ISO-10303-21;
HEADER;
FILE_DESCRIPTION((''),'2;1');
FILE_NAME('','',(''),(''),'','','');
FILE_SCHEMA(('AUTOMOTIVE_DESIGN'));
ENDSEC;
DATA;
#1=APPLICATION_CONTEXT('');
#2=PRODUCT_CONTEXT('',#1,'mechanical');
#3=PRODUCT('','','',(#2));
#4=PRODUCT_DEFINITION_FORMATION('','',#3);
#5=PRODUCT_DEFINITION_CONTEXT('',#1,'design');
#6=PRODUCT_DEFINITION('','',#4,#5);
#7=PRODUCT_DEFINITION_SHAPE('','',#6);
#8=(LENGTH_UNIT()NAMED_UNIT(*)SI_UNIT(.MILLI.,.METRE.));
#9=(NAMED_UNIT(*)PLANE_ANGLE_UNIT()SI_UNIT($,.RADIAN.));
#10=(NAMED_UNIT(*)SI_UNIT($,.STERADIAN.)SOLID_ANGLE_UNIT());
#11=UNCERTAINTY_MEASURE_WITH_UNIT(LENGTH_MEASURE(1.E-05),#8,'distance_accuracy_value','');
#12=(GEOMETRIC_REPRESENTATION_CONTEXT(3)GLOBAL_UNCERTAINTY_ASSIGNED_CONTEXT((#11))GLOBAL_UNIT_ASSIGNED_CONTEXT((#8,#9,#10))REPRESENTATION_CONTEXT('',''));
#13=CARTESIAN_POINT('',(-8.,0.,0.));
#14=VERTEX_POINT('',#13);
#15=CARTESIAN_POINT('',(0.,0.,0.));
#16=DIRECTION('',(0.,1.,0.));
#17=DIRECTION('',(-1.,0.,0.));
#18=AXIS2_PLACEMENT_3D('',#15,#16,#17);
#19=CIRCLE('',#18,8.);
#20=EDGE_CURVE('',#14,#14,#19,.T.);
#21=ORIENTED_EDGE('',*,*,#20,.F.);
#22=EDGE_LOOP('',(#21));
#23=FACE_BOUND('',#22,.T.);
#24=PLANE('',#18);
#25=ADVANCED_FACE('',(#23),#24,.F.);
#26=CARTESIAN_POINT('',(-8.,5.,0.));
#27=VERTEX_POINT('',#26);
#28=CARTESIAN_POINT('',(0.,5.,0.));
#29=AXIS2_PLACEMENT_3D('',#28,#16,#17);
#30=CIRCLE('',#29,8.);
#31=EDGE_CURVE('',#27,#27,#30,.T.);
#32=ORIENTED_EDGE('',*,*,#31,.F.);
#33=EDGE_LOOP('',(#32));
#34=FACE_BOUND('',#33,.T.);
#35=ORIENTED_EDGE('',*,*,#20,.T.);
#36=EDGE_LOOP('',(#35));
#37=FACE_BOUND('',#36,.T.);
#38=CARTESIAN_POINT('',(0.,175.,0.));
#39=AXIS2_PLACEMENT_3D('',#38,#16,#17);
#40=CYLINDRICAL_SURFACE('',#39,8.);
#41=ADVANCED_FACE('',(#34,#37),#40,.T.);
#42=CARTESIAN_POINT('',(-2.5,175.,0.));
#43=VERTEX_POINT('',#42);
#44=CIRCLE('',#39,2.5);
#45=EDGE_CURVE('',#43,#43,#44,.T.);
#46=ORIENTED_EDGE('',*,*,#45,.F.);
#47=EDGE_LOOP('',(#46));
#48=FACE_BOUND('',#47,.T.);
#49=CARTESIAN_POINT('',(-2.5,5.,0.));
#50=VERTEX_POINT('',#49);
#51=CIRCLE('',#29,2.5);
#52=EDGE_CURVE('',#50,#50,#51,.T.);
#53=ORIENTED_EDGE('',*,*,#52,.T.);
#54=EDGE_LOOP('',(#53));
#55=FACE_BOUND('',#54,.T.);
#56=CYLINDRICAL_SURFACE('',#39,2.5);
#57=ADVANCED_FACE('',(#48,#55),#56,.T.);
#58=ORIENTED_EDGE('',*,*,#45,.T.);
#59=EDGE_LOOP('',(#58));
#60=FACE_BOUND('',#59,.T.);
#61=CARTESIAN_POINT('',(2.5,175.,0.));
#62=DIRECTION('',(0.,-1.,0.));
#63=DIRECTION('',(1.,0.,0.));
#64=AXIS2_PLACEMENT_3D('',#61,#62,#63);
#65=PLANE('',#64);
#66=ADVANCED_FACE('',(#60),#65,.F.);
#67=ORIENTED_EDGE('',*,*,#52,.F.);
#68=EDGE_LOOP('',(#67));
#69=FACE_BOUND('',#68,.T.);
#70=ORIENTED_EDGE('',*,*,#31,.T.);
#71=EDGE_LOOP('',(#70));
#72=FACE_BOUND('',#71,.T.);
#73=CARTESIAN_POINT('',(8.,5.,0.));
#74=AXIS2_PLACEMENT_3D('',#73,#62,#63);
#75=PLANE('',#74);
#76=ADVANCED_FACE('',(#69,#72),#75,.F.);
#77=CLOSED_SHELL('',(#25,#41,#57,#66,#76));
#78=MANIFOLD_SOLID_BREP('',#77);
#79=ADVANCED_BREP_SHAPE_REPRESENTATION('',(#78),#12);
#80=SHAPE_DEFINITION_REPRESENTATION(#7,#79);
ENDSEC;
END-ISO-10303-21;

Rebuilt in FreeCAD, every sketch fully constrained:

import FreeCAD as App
import Part
import Sketcher
from FreeCAD import Vector


def add_polygon(sketch, points):
    """Adds a closed chain of lines whose ends are joined by coincident constraints."""
    first, n = sketch.GeometryCount, len(points)
    for a, b in zip(points, points[1:] + points[:1]):
        sketch.addGeometry(Part.LineSegment(App.Vector(*a, 0), App.Vector(*b, 0)), False)
    for i in range(n):
        sketch.addConstraint(Sketcher.Constraint("Coincident", first + i, 2, first + (i + 1) % n, 1))

doc = App.newDocument("Part")
body = doc.addObject("PartDesign::Body", "Body")

# Sketch on XY plane
sketch1 = body.newObject("Sketcher::SketchObject", "Sketch")
sketch1.AttachmentSupport = (doc.getObject("XY_Plane"), [""])
sketch1.MapMode = "FlatFace"
add_polygon(sketch1, [(0, 175), (0, 0), (8, 0), (8, 5), (2.5, 5), (2.5, 175)])  # lines 0-5
sketch1.addConstraint([
    Sketcher.Constraint("Vertical", 0),
    Sketcher.Constraint("Horizontal", 1),
    Sketcher.Constraint("Vertical", 2),
    Sketcher.Constraint("Horizontal", 3),
    Sketcher.Constraint("Vertical", 4),
    Sketcher.Constraint("Horizontal", 5),
    Sketcher.Constraint("Coincident", 0, 2, -1, 1),
    Sketcher.Constraint("DistanceX", 1, 1, 1, 2, 8.0),
    Sketcher.Constraint("DistanceY", 0, 2, 0, 1, 175.0),
    Sketcher.Constraint("DistanceY", 2, 1, 2, 2, 5.0),
    Sketcher.Constraint("DistanceX", 3, 2, 3, 1, 5.5),
])
revolution = body.newObject("PartDesign::Revolution", "Revolution")
revolution.Profile = sketch1
revolution.ReferenceAxis = (sketch1, ["V_Axis"])
revolution.Angle = 360

doc.recompute()
